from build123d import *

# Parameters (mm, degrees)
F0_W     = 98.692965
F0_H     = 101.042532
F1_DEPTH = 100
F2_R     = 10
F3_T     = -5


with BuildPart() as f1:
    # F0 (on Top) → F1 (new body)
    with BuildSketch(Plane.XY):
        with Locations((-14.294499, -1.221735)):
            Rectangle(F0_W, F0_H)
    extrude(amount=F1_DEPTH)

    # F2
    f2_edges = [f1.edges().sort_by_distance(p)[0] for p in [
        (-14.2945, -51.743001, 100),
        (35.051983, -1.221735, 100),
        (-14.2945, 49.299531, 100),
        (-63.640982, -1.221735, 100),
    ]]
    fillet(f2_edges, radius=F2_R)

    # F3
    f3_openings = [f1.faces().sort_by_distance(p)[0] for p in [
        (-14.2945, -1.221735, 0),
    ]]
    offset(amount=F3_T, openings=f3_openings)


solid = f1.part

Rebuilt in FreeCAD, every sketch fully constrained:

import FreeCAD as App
import Part
import Sketcher


def edges_at(feature, points):
    """Names of the edges that pass closest to the given points."""
    edges = feature.Shape.Edges
    near = lambda p: min(range(len(edges)), key=lambda i: edges[i].distToShape(Part.Vertex(*p))[0])
    return sorted({f"Edge{near(p) + 1}" for p in points})


def faces_at(feature, points):
    """Names of the faces that lie closest to the given points."""
    faces = feature.Shape.Faces
    near = lambda p: min(range(len(faces)), key=lambda i: faces[i].distToShape(Part.Vertex(*p))[0])
    return sorted({f"Face{near(p) + 1}" for p in points})

doc = App.newDocument("Part")
body = doc.addObject("PartDesign::Body", "Body")

# Sketch on XY plane
sketch1 = body.newObject("Sketcher::SketchObject", "Sketch")
sketch1.AttachmentSupport = (doc.getObject("XY_Plane"), [""])
sketch1.MapMode = "FlatFace"
sketch1.addGeometry([
    Part.LineSegment(App.Vector(-64, 49, 0), App.Vector(-64, -52, 0)),
    Part.LineSegment(App.Vector(-64, -52, 0), App.Vector(35, -52, 0)),
    Part.LineSegment(App.Vector(35, -52, 0), App.Vector(35, 49, 0)),
    Part.LineSegment(App.Vector(35, 49, 0), App.Vector(-64, 49, 0)),
], False)
sketch1.addConstraint([
    Sketcher.Constraint("Coincident", 0, 2, 1, 1),
    Sketcher.Constraint("Coincident", 1, 2, 2, 1),
    Sketcher.Constraint("Coincident", 2, 2, 3, 1),
    Sketcher.Constraint("Coincident", 3, 2, 0, 1),
    Sketcher.Constraint("Vertical", 0),
    Sketcher.Constraint("Horizontal", 1),
    Sketcher.Constraint("Vertical", 2),
    Sketcher.Constraint("Horizontal", 3),
    Sketcher.Constraint("DistanceY", 0, 2, -1, 1, 51.743001),
    Sketcher.Constraint("DistanceY", 0, 2, 0, 1, 101.042532),
    Sketcher.Constraint("DistanceX", 1, 1, 1, 2, 98.692965),
    Sketcher.Constraint("DistanceX", 0, 2, -1, 1, 63.640982),
])
pad1 = body.newObject("PartDesign::Pad", "Pad")
pad1.Profile = sketch1
pad1.Length = 100
doc.recompute()

fillet = body.newObject("PartDesign::Fillet", "Fillet")
fillet.Base = (pad1, edges_at(pad1, [
    (-14.294, -51.743, 100),
    (35.052, -1.222, 100),
    (-14.294, 49.3, 100),
    (-63.641, -1.222, 100),
]))
fillet.Radius = 10
doc.recompute()

thickness = body.newObject("PartDesign::Thickness", "Thickness")
thickness.Base = (fillet, faces_at(fillet, [(-14.294, -1.222, 0)]))
thickness.Value = 5
thickness.Reversed = True
thickness.Join = "Arc"

doc.recompute()
